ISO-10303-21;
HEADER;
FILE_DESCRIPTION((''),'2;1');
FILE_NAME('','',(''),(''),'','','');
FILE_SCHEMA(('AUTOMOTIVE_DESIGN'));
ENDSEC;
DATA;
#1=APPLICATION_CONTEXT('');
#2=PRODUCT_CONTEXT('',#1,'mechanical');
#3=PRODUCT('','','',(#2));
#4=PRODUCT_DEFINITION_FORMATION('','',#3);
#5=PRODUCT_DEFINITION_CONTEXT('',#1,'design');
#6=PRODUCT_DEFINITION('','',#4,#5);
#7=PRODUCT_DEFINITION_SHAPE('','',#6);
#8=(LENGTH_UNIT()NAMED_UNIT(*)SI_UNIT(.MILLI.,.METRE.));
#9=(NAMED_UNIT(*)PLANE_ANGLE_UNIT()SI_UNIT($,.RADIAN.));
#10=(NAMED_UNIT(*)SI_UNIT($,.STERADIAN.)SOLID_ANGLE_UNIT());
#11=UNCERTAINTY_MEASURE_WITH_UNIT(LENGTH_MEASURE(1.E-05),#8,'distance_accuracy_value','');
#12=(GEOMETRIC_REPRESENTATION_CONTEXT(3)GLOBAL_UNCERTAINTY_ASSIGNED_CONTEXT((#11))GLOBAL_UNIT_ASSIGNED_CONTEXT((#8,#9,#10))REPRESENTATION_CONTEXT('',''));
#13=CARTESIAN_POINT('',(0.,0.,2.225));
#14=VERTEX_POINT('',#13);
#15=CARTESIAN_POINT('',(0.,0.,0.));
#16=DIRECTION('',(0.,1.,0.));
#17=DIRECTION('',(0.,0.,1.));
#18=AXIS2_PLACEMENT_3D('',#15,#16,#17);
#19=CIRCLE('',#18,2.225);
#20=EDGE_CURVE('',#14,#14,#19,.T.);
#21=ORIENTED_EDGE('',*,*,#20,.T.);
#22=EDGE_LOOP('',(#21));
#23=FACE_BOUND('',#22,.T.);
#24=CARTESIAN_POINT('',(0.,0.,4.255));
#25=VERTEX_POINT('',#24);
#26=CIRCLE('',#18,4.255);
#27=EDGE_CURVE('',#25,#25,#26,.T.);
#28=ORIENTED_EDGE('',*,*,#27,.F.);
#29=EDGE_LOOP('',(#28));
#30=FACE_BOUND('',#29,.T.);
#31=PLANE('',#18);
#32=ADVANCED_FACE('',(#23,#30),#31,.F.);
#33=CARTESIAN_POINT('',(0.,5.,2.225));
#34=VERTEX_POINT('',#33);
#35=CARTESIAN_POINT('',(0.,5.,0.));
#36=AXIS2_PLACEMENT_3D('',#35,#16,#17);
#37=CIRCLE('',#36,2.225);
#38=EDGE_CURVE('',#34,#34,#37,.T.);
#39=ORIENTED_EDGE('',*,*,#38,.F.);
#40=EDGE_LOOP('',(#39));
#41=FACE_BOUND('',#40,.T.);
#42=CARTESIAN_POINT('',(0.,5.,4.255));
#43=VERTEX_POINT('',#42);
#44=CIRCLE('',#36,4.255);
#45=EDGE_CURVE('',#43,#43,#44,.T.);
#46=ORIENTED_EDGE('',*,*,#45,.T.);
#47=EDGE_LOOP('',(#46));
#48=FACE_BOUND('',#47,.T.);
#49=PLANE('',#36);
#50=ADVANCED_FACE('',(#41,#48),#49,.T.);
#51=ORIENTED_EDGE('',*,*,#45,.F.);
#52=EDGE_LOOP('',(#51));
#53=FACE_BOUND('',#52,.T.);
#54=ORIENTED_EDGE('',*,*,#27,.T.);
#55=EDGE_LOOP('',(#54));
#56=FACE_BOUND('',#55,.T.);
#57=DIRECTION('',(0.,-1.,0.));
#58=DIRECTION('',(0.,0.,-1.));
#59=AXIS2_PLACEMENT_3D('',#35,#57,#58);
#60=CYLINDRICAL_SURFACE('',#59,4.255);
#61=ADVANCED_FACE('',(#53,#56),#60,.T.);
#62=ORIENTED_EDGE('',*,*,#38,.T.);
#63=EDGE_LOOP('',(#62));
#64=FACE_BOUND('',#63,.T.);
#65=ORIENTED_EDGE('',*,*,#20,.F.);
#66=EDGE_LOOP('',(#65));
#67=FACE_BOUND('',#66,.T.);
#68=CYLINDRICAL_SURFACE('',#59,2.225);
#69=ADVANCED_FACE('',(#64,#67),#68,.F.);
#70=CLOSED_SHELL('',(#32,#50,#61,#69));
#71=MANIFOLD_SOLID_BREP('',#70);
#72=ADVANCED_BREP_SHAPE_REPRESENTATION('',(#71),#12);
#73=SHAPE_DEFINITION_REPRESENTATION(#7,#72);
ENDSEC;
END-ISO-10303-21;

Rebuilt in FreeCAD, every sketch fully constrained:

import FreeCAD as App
import Part
import Sketcher

V = App.Vector
Q = App.Units.Quantity

doc = App.newDocument("Part")
body = doc.addObject("PartDesign::Body", "Body")

# Sketch on XZ plane
sketch1 = doc.addObject("Sketcher::SketchObject", "Sketch")
body.addObject(sketch1)
sketch1.AttachmentSupport = (doc.XZ_Plane, [""])
sketch1.MapMode = "FlatFace"
sketch1.addGeometry([
    Part.Circle(V(0, 0, 0), V(0, 0, 1), 4.255),
    Part.Circle(V(0, 0, 0), V(0, 0, 1), 2.225),
], False)
sketch1.addConstraint([
    Sketcher.Constraint("Coincident", 0, 3, -1, 1),
    Sketcher.Constraint("Coincident", 1, 3, -1, 1),
    Sketcher.Constraint("Diameter", 0, Q("8.51 mm")),
    Sketcher.Constraint("Diameter", 1, Q("4.45 mm")),
])
pad1 = doc.addObject("PartDesign::Pad", "Pad")
body.addObject(pad1)
pad1.Profile = sketch1
pad1.Length = 5
pad1.Reversed = True

doc.recompute()
